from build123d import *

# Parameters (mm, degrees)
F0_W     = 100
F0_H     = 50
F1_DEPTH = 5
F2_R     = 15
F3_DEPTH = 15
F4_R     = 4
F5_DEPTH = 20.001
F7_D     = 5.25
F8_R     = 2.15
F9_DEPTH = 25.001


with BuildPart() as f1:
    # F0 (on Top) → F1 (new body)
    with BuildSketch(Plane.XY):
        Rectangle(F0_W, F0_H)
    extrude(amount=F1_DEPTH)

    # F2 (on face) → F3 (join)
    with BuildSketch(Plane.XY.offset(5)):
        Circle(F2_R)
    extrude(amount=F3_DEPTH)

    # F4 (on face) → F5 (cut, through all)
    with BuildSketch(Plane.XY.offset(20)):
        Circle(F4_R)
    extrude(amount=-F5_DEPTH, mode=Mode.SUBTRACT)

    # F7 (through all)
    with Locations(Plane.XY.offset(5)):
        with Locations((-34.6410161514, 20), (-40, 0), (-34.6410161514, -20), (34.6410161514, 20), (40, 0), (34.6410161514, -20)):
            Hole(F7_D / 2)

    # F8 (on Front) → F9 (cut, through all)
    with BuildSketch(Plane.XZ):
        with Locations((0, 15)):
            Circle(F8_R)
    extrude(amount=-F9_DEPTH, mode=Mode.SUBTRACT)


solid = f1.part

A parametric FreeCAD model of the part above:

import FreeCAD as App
import Part
import Sketcher


def add_polygon(sketch, points):
    """Adds a closed chain of lines whose ends are joined by coincident constraints."""
    first, n = sketch.GeometryCount, len(points)
    for a, b in zip(points, points[1:] + points[:1]):
        sketch.addGeometry(Part.LineSegment(App.Vector(*a, 0), App.Vector(*b, 0)), False)
    for i in range(n):
        sketch.addConstraint(Sketcher.Constraint("Coincident", first + i, 2, first + (i + 1) % n, 1))

doc = App.newDocument("Part")
body = doc.addObject("PartDesign::Body", "Body")

sketch1 = body.newObject("Sketcher::SketchObject", "Sketch")
sketch1.AttachmentSupport = (doc.getObject("XY_Plane"), [""])
sketch1.MapMode = "FlatFace"
add_polygon(sketch1, [(-50, 25), (-50, -25), (50, -25), (50, 25)])
sketch1.addConstraint([
    Sketcher.Constraint("Vertical", 0),
    Sketcher.Constraint("Horizontal", 1),
    Sketcher.Constraint("Vertical", 2),
    Sketcher.Constraint("Horizontal", 3),
    Sketcher.Constraint("Symmetric", 0, 2, 2, 2, -1, 1),
    Sketcher.Constraint("DistanceX", 1, 1, 1, 2, 100.0),
    Sketcher.Constraint("DistanceY", 0, 2, 0, 1, 50.0),
])
pad1 = body.newObject("PartDesign::Pad", "Pad")
pad1.Profile = sketch1
pad1.Length = 5

sketch2 = body.newObject("Sketcher::SketchObject", "Sketch001")
sketch2.AttachmentSupport = (doc.getObject("XY_Plane"), [""])
sketch2.MapMode = "FlatFace"
sketch2.AttachmentOffset = App.Placement(App.Vector(0, 0, 5), App.Rotation())
sketch2.addGeometry(Part.Circle(App.Vector(0, 0, 0), App.Vector(0, 0, 1), 15), False)
sketch2.addConstraint([
    Sketcher.Constraint("Coincident", 0, 3, -1, 1),
    Sketcher.Constraint("Diameter", 0, 30.0),
])
pad2 = body.newObject("PartDesign::Pad", "Pad001")
pad2.Profile = sketch2
pad2.Length = 15

sketch3 = body.newObject("Sketcher::SketchObject", "Sketch002")
sketch3.AttachmentSupport = (doc.getObject("XY_Plane"), [""])
sketch3.MapMode = "FlatFace"
sketch3.AttachmentOffset = App.Placement(App.Vector(0, 0, 20), App.Rotation())
sketch3.addGeometry(Part.Circle(App.Vector(0, 0, 0), App.Vector(0, 0, 1), 4), False)
sketch3.addConstraint([
    Sketcher.Constraint("Coincident", 0, 3, -1, 1),
    Sketcher.Constraint("Diameter", 0, 8.0),
])
pocket1 = body.newObject("PartDesign::Pocket", "Pocket")
pocket1.Profile = sketch3
pocket1.Type = "ThroughAll"

sketch4 = body.newObject("Sketcher::SketchObject", "Sketch003")
sketch4.AttachmentSupport = (doc.getObject("XY_Plane"), [""])
sketch4.MapMode = "FlatFace"
sketch4.AttachmentOffset = App.Placement(App.Vector(0, 0, 5), App.Rotation())
sketch4.addGeometry([
    Part.Circle(App.Vector(-34.641016, 20, 0), App.Vector(0, 0, 1), 2.625),
    Part.Circle(App.Vector(-40, 0, 0), App.Vector(0, 0, 1), 2.625),
    Part.Circle(App.Vector(-34.641016, -20, 0), App.Vector(0, 0, 1), 2.625),
    Part.Circle(App.Vector(34.641016, 20, 0), App.Vector(0, 0, 1), 2.625),
    Part.Circle(App.Vector(40, 0, 0), App.Vector(0, 0, 1), 2.625),
    Part.Circle(App.Vector(34.641016, -20, 0), App.Vector(0, 0, 1), 2.625),
], False)
sketch4.addConstraint([
    Sketcher.Constraint("Equal", 0, 1),
    Sketcher.Constraint("Equal", 1, 2),
    Sketcher.Constraint("Equal", 2, 3),
    Sketcher.Constraint("Equal", 3, 4),
    Sketcher.Constraint("Equal", 4, 5),
    Sketcher.Constraint("Symmetric", 2, 3, 3, 3, -1, 1),
    Sketcher.Constraint("Symmetric", 1, 3, 4, 3, -1, 1),
    Sketcher.Constraint("Symmetric", 0, 3, 5, 3, -1, 1),
    Sketcher.Constraint("Symmetric", 0, 3, 3, 3, -2),
    Sketcher.Constraint("PointOnObject", 1, 3, -1),
    Sketcher.Constraint("Diameter", 0, 5.25),
    Sketcher.Constraint("DistanceY", -1, 1, 0, 3, 20.0),
    Sketcher.Constraint("DistanceX", 1, 3, -1, 1, 40.0),
    Sketcher.Constraint("DistanceX", 0, 3, -1, 1, 34.641016),
])
doc.recompute()
hole = body.newObject("PartDesign::Hole", "Hole")
hole.Profile = sketch4
hole.ThreadType = "None"
hole.Diameter = 5.25
hole.DepthType = "ThroughAll"

sketch5 = body.newObject("Sketcher::SketchObject", "Sketch004")
sketch5.AttachmentSupport = (doc.getObject("XZ_Plane"), [""])
sketch5.MapMode = "FlatFace"
sketch5.addGeometry(Part.Circle(App.Vector(0, 15, 0), App.Vector(0, 0, 1), 2.15), False)
sketch5.addConstraint([
    Sketcher.Constraint("PointOnObject", 0, 3, -2),
    Sketcher.Constraint("Diameter", 0, 4.3),
    Sketcher.Constraint("DistanceY", -1, 1, 0, 3, 15.0),
])
pocket2 = body.newObject("PartDesign::Pocket", "Pocket001")
pocket2.Profile = sketch5
pocket2.Type = "ThroughAll"

doc.recompute()
